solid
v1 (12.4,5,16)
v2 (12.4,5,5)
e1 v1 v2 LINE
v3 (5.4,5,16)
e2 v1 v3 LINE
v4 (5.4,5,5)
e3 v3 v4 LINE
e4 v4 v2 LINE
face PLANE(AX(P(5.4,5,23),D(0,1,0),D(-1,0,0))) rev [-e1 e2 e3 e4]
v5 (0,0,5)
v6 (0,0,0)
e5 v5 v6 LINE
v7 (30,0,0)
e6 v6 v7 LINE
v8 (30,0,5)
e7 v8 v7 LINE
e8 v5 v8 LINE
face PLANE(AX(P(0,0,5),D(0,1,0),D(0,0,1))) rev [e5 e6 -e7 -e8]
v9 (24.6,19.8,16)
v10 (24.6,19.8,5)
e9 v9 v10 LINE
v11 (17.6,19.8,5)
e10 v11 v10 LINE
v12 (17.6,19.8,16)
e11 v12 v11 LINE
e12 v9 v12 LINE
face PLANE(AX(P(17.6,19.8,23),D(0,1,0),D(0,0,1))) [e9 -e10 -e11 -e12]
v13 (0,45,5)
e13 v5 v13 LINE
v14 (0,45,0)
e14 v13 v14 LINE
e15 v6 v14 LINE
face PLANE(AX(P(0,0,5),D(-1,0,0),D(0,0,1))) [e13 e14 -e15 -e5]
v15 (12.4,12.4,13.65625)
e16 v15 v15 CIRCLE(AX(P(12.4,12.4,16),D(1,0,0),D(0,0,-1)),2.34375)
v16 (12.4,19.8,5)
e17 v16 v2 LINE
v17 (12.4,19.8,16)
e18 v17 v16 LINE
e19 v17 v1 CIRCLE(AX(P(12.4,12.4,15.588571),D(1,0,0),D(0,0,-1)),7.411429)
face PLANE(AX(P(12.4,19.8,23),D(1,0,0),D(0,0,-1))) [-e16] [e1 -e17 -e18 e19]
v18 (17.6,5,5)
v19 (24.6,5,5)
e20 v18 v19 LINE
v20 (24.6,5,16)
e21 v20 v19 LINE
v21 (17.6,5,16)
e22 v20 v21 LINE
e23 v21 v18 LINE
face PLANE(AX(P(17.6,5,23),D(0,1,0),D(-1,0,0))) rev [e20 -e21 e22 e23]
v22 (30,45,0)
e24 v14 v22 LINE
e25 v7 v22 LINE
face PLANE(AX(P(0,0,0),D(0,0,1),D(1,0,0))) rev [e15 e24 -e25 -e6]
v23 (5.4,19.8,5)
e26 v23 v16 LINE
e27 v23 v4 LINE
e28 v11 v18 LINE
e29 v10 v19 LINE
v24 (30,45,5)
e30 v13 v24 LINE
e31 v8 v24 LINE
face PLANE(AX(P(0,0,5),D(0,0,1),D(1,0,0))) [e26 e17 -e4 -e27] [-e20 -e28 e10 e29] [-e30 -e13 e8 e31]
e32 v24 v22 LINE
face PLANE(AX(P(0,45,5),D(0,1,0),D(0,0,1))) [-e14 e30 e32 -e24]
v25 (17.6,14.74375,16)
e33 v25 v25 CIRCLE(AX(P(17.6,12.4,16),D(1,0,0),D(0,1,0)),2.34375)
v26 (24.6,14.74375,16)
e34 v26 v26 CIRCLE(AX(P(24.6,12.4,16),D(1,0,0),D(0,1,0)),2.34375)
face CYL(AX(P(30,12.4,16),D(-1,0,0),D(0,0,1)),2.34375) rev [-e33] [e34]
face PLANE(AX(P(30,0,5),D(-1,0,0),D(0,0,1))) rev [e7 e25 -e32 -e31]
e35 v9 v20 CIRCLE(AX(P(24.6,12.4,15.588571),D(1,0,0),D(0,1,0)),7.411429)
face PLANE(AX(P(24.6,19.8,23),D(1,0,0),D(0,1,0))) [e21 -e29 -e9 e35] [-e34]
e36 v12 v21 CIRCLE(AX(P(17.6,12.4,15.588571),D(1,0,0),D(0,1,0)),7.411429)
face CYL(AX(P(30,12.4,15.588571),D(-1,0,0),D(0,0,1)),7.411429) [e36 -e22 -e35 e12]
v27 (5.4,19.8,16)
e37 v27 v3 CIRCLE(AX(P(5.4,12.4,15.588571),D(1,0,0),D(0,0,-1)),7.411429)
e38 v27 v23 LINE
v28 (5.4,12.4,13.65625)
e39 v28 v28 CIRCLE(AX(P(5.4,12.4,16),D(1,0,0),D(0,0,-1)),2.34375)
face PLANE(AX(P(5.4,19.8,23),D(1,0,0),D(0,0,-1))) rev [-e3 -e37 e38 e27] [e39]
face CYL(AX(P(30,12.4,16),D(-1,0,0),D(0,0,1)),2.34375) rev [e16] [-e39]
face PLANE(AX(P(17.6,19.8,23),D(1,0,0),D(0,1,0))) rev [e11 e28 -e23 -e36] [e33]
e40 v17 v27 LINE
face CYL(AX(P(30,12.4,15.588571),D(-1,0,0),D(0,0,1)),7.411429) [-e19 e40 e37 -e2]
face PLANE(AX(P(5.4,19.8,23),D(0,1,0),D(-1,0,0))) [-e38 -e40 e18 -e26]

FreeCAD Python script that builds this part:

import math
import FreeCAD as App
import Part
import Sketcher


def add_polygon(sketch, points):
    """Adds a closed chain of lines whose ends are joined by coincident constraints."""
    first, n = sketch.GeometryCount, len(points)
    for a, b in zip(points, points[1:] + points[:1]):
        sketch.addGeometry(Part.LineSegment(App.Vector(*a, 0), App.Vector(*b, 0)), False)
    for i in range(n):
        sketch.addConstraint(Sketcher.Constraint("Coincident", first + i, 2, first + (i + 1) % n, 1))

doc = App.newDocument("Part")
body = doc.addObject("PartDesign::Body", "Body")

# Sketch on XY plane
sketch1 = body.newObject("Sketcher::SketchObject", "Sketch")
sketch1.AttachmentSupport = (doc.getObject("XY_Plane"), [""])
sketch1.MapMode = "FlatFace"
add_polygon(sketch1, [(0, 45), (0, 0), (30, 0), (30, 45)])  # lines 0-3
sketch1.addConstraint([
    Sketcher.Constraint("Vertical", 0),
    Sketcher.Constraint("Horizontal", 1),
    Sketcher.Constraint("Vertical", 2),
    Sketcher.Constraint("Horizontal", 3),
    Sketcher.Constraint("Coincident", 0, 2, -1, 1),
    Sketcher.Constraint("DistanceX", 1, 1, 1, 2, 30.0),
    Sketcher.Constraint("DistanceY", 0, 2, 0, 1, 45.0),
])
pad1 = body.newObject("PartDesign::Pad", "Pad")
pad1.Profile = sketch1
pad1.Length = 5

# Sketch on XY plane
sketch2 = body.newObject("Sketcher::SketchObject", "Sketch001")
sketch2.AttachmentSupport = (doc.getObject("XY_Plane"), [""])
sketch2.MapMode = "FlatFace"
sketch2.AttachmentOffset = App.Placement(App.Vector(0, 0, 5), App.Rotation())
add_polygon(sketch2, [(5.4, 19.8), (5.4, 5), (12.4, 5), (12.4, 19.8)])  # lines 0-3
add_polygon(sketch2, [(17.6, 19.8), (17.6, 5), (24.6, 5), (24.6, 19.8)])  # lines 4-7
sketch2.addConstraint([
    Sketcher.Constraint("Vertical", 0),
    Sketcher.Constraint("Horizontal", 1),
    Sketcher.Constraint("Vertical", 2),
    Sketcher.Constraint("Horizontal", 3),
    Sketcher.Constraint("Vertical", 4),
    Sketcher.Constraint("Horizontal", 5),
    Sketcher.Constraint("Vertical", 6),
    Sketcher.Constraint("Horizontal", 7),
    Sketcher.Constraint("Horizontal", 1, 2, 4, 2),
    Sketcher.Constraint("Horizontal", 3, 2, 6, 2),
    Sketcher.Constraint("Equal", 3, 5),
    Sketcher.Constraint("DistanceX", 1, 1, 1, 2, 7.0),
    Sketcher.Constraint("DistanceY", 0, 2, 0, 1, 14.8),
    Sketcher.Constraint("DistanceY", -1, 1, 0, 2, 5.0),
    Sketcher.Constraint("DistanceX", -1, 1, 0, 2, 5.4),
    Sketcher.Constraint("DistanceX", -1, 1, 4, 2, 17.6),
])
pad2 = body.newObject("PartDesign::Pad", "Pad001")
pad2.Profile = sketch2
pad2.Length = 18

# Sketch on YZ plane
sketch3 = body.newObject("Sketcher::SketchObject", "Sketch002")
sketch3.AttachmentSupport = (doc.getObject("YZ_Plane"), [""])
sketch3.MapMode = "FlatFace"
sketch3.AttachmentOffset = App.Placement(App.Vector(0, 0, 5.4), App.Rotation())
sketch3.addGeometry([
    Part.ArcOfCircle(Part.Circle(App.Vector(12.4, 16, 0), App.Vector(0, 0, 1), 2.34375), math.radians(-90), math.radians(0)),  # 0
    Part.ArcOfCircle(Part.Circle(App.Vector(12.4, 16, 0), App.Vector(0, 0, 1), 2.34375), math.radians(-180), math.radians(-90)),  # 1
    Part.ArcOfCircle(Part.Circle(App.Vector(12.4, 16, 0), App.Vector(0, 0, 1), 2.34375), math.radians(90), math.radians(180)),  # 2
    Part.ArcOfCircle(Part.Circle(App.Vector(12.4, 16, 0), App.Vector(0, 0, 1), 2.34375), math.radians(0), math.radians(90)),  # 3
    Part.ArcOfCircle(Part.Circle(App.Vector(12.4, 15.588571, 0), App.Vector(0, 0, 1), 7.411429), math.radians(3.182281), math.radians(90)),  # 4
    Part.LineSegment(App.Vector(12.4, 23, 0), App.Vector(19.8, 23, 0)),  # 5
    Part.LineSegment(App.Vector(19.8, 23, 0), App.Vector(19.8, 16, 0)),  # 6
    Part.LineSegment(App.Vector(5, 23, 0), App.Vector(12.4, 23, 0)),  # 7
    Part.ArcOfCircle(Part.Circle(App.Vector(12.4, 15.588571, 0), App.Vector(0, 0, 1), 7.411429), math.radians(90), math.radians(176.817719)),  # 8
    Part.LineSegment(App.Vector(5, 16, 0), App.Vector(5, 23, 0)),  # 9
], False)
sketch3.addConstraint([
    Sketcher.Constraint("Tangent", 0, 1, 1, 2),
    Sketcher.Constraint("Tangent", 1, 1, 2, 2),
    Sketcher.Constraint("Tangent", 2, 1, 3, 2),
    Sketcher.Constraint("Tangent", 3, 1, 0, 2),
    Sketcher.Constraint("Tangent", 4, 2, 5, 1),
    Sketcher.Constraint("Coincident", 5, 2, 6, 1),
    Sketcher.Constraint("Coincident", 6, 2, 4, 1),
    Sketcher.Constraint("Tangent", 7, 2, 8, 1),
    Sketcher.Constraint("Coincident", 8, 2, 9, 1),
    Sketcher.Constraint("Coincident", 9, 2, 7, 1),
    Sketcher.Constraint("Horizontal", 5),
    Sketcher.Constraint("Vertical", 6),
    Sketcher.Constraint("Horizontal", 7),
    Sketcher.Constraint("Vertical", 9),
    Sketcher.Constraint("Coincident", 8, 3, 4, 3),
    Sketcher.Constraint("Equal", 0, 1),
    Sketcher.Constraint("Equal", 4, 8),
    Sketcher.Constraint("Horizontal", 3, 3, 1, 1),
    Sketcher.Constraint("Horizontal", 1, 1, 3, 1),
    Sketcher.Constraint("Horizontal", 3, 1, 6, 2),
    Sketcher.Constraint("Horizontal", 6, 2, 8, 2),
    Sketcher.Constraint("Vertical", 3, 3, 4, 3),
    Sketcher.Constraint("Vertical", 8, 3, 0, 1),
    Sketcher.Constraint("Vertical", 0, 1, 2, 1),
    Sketcher.Constraint("DistanceY", 6, 2, 6, 1, 7.0),
    Sketcher.Constraint("DistanceX", 5, 1, 5, 2, 7.4),
    Sketcher.Constraint("DistanceY", -1, 1, 0, 3, 16.0),
    Sketcher.Constraint("DistanceX", -1, 1, 8, 2, 5.0),
    Sketcher.Constraint("Radius", 0, 2.34375),
])
pocket1 = body.newObject("PartDesign::Pocket", "Pocket")
pocket1.Profile = sketch3
pocket1.Type = "ThroughAll"
pocket1.Midplane = True

doc.recompute()
